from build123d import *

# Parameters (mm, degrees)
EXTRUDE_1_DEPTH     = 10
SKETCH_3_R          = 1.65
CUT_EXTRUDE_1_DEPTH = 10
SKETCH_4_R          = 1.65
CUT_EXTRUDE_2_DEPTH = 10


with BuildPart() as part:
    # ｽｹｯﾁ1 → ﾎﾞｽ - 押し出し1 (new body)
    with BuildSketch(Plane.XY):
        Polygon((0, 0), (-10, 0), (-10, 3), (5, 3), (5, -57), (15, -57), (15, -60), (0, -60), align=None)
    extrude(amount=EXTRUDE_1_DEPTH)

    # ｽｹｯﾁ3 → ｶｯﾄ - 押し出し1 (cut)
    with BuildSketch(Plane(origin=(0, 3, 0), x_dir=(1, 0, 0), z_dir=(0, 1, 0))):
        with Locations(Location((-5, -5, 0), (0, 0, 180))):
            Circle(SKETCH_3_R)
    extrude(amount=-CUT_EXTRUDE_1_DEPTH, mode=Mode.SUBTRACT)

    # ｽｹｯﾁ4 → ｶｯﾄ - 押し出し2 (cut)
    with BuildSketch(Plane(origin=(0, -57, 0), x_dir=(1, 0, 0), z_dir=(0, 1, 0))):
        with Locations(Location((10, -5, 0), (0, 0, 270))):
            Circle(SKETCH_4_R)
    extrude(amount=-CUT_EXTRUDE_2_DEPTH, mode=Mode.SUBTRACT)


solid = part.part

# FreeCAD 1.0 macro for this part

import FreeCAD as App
import Part
import Sketcher
Q = App.Units.Quantity

doc = App.newDocument("Part")
body = doc.addObject("PartDesign::Body", "Body")

sketch1 = body.newObject("Sketcher::SketchObject", "Sketch")
sketch1.AttachmentSupport = (doc.getObject("XY_Plane"), [""])
sketch1.MapMode = "FlatFace"
sketch1.addGeometry(Part.LineSegment(App.Vector(-10, 0, 0), App.Vector(0, 0, 0)), False)
sketch1.addGeometry(Part.LineSegment(App.Vector(0, 0, 0), App.Vector(0, -60, 0)), False)
sketch1.addGeometry(Part.LineSegment(App.Vector(0, -60, 0), App.Vector(15, -60, 0)), False)
sketch1.addGeometry(Part.LineSegment(App.Vector(15, -60, 0), App.Vector(15, -57, 0)), False)
sketch1.addGeometry(Part.LineSegment(App.Vector(15, -57, 0), App.Vector(5, -57, 0)), False)
sketch1.addGeometry(Part.LineSegment(App.Vector(5, -57, 0), App.Vector(5, 3, 0)), False)
sketch1.addGeometry(Part.LineSegment(App.Vector(5, 3, 0), App.Vector(-10, 3, 0)), False)
sketch1.addGeometry(Part.LineSegment(App.Vector(-10, 3, 0), App.Vector(-10, 0, 0)), False)
sketch1.addConstraint(Sketcher.Constraint("Coincident", 0, 2, 1, 1))
sketch1.addConstraint(Sketcher.Constraint("Coincident", 1, 2, 2, 1))
sketch1.addConstraint(Sketcher.Constraint("Coincident", 2, 2, 3, 1))
sketch1.addConstraint(Sketcher.Constraint("Coincident", 3, 2, 4, 1))
sketch1.addConstraint(Sketcher.Constraint("Coincident", 4, 2, 5, 1))
sketch1.addConstraint(Sketcher.Constraint("Coincident", 5, 2, 6, 1))
sketch1.addConstraint(Sketcher.Constraint("Coincident", 6, 2, 7, 1))
sketch1.addConstraint(Sketcher.Constraint("Coincident", 7, 2, 0, 1))
sketch1.addConstraint(Sketcher.Constraint("Horizontal", 0))
sketch1.addConstraint(Sketcher.Constraint("Vertical", 1))
sketch1.addConstraint(Sketcher.Constraint("Horizontal", 2))
sketch1.addConstraint(Sketcher.Constraint("Vertical", 3))
sketch1.addConstraint(Sketcher.Constraint("Horizontal", 4))
sketch1.addConstraint(Sketcher.Constraint("Vertical", 5))
sketch1.addConstraint(Sketcher.Constraint("Horizontal", 6))
sketch1.addConstraint(Sketcher.Constraint("Vertical", 7))
sketch1.addConstraint(Sketcher.Constraint("Coincident", 0, 2, -1, 1))
sketch1.addConstraint(Sketcher.Constraint("Equal", 0, 4))
sketch1.addConstraint(Sketcher.Constraint("Equal", 1, 5))
sketch1.addConstraint(Sketcher.Constraint("DistanceX", 0, 1, 0, 2, Q("10 mm")))
sketch1.addConstraint(Sketcher.Constraint("DistanceX", 2, 1, 2, 2, Q("15 mm")))
sketch1.addConstraint(Sketcher.Constraint("DistanceY", 1, 2, 1, 1, Q("60 mm")))
sketch1.addConstraint(Sketcher.Constraint("DistanceY", 3, 1, 3, 2, Q("3 mm")))
pad1 = body.newObject("PartDesign::Pad", "Pad")
pad1.Profile = sketch1
pad1.Length = 10

sketch2 = body.newObject("Sketcher::SketchObject", "Sketch001")
sketch2.AttachmentSupport = (doc.getObject("XZ_Plane"), [""])
sketch2.MapMode = "FlatFace"
sketch2.AttachmentOffset = App.Placement(App.Vector(0, 0, -3), App.Rotation())
sketch2.addGeometry(Part.Circle(App.Vector(-5, 5, 0), App.Vector(0, 0, 1), 1.6), False)
sketch2.addConstraint(Sketcher.Constraint("Diameter", 0, Q("3.3 mm")))
sketch2.addConstraint(Sketcher.Constraint("DistanceX", 0, 3, -1, 1, Q("5 mm")))
sketch2.addConstraint(Sketcher.Constraint("DistanceY", -1, 1, 0, 3, Q("5 mm")))
pocket1 = body.newObject("PartDesign::Pocket", "Pocket")
pocket1.Profile = sketch2
pocket1.Length = 10
pocket1.Reversed = True

sketch3 = body.newObject("Sketcher::SketchObject", "Sketch002")
sketch3.AttachmentSupport = (doc.getObject("XZ_Plane"), [""])
sketch3.MapMode = "FlatFace"
sketch3.AttachmentOffset = App.Placement(App.Vector(0, 0, 57), App.Rotation())
sketch3.addGeometry(Part.Circle(App.Vector(10, 5, 0), App.Vector(0, 0, 1), 1.6), False)
sketch3.addConstraint(Sketcher.Constraint("Diameter", 0, Q("3.3 mm")))
sketch3.addConstraint(Sketcher.Constraint("DistanceX", -1, 1, 0, 3, Q("10 mm")))
sketch3.addConstraint(Sketcher.Constraint("DistanceY", -1, 1, 0, 3, Q("5 mm")))
pocket2 = body.newObject("PartDesign::Pocket", "Pocket001")
pocket2.Profile = sketch3
pocket2.Length = 10
pocket2.Reversed = True

doc.recompute()
